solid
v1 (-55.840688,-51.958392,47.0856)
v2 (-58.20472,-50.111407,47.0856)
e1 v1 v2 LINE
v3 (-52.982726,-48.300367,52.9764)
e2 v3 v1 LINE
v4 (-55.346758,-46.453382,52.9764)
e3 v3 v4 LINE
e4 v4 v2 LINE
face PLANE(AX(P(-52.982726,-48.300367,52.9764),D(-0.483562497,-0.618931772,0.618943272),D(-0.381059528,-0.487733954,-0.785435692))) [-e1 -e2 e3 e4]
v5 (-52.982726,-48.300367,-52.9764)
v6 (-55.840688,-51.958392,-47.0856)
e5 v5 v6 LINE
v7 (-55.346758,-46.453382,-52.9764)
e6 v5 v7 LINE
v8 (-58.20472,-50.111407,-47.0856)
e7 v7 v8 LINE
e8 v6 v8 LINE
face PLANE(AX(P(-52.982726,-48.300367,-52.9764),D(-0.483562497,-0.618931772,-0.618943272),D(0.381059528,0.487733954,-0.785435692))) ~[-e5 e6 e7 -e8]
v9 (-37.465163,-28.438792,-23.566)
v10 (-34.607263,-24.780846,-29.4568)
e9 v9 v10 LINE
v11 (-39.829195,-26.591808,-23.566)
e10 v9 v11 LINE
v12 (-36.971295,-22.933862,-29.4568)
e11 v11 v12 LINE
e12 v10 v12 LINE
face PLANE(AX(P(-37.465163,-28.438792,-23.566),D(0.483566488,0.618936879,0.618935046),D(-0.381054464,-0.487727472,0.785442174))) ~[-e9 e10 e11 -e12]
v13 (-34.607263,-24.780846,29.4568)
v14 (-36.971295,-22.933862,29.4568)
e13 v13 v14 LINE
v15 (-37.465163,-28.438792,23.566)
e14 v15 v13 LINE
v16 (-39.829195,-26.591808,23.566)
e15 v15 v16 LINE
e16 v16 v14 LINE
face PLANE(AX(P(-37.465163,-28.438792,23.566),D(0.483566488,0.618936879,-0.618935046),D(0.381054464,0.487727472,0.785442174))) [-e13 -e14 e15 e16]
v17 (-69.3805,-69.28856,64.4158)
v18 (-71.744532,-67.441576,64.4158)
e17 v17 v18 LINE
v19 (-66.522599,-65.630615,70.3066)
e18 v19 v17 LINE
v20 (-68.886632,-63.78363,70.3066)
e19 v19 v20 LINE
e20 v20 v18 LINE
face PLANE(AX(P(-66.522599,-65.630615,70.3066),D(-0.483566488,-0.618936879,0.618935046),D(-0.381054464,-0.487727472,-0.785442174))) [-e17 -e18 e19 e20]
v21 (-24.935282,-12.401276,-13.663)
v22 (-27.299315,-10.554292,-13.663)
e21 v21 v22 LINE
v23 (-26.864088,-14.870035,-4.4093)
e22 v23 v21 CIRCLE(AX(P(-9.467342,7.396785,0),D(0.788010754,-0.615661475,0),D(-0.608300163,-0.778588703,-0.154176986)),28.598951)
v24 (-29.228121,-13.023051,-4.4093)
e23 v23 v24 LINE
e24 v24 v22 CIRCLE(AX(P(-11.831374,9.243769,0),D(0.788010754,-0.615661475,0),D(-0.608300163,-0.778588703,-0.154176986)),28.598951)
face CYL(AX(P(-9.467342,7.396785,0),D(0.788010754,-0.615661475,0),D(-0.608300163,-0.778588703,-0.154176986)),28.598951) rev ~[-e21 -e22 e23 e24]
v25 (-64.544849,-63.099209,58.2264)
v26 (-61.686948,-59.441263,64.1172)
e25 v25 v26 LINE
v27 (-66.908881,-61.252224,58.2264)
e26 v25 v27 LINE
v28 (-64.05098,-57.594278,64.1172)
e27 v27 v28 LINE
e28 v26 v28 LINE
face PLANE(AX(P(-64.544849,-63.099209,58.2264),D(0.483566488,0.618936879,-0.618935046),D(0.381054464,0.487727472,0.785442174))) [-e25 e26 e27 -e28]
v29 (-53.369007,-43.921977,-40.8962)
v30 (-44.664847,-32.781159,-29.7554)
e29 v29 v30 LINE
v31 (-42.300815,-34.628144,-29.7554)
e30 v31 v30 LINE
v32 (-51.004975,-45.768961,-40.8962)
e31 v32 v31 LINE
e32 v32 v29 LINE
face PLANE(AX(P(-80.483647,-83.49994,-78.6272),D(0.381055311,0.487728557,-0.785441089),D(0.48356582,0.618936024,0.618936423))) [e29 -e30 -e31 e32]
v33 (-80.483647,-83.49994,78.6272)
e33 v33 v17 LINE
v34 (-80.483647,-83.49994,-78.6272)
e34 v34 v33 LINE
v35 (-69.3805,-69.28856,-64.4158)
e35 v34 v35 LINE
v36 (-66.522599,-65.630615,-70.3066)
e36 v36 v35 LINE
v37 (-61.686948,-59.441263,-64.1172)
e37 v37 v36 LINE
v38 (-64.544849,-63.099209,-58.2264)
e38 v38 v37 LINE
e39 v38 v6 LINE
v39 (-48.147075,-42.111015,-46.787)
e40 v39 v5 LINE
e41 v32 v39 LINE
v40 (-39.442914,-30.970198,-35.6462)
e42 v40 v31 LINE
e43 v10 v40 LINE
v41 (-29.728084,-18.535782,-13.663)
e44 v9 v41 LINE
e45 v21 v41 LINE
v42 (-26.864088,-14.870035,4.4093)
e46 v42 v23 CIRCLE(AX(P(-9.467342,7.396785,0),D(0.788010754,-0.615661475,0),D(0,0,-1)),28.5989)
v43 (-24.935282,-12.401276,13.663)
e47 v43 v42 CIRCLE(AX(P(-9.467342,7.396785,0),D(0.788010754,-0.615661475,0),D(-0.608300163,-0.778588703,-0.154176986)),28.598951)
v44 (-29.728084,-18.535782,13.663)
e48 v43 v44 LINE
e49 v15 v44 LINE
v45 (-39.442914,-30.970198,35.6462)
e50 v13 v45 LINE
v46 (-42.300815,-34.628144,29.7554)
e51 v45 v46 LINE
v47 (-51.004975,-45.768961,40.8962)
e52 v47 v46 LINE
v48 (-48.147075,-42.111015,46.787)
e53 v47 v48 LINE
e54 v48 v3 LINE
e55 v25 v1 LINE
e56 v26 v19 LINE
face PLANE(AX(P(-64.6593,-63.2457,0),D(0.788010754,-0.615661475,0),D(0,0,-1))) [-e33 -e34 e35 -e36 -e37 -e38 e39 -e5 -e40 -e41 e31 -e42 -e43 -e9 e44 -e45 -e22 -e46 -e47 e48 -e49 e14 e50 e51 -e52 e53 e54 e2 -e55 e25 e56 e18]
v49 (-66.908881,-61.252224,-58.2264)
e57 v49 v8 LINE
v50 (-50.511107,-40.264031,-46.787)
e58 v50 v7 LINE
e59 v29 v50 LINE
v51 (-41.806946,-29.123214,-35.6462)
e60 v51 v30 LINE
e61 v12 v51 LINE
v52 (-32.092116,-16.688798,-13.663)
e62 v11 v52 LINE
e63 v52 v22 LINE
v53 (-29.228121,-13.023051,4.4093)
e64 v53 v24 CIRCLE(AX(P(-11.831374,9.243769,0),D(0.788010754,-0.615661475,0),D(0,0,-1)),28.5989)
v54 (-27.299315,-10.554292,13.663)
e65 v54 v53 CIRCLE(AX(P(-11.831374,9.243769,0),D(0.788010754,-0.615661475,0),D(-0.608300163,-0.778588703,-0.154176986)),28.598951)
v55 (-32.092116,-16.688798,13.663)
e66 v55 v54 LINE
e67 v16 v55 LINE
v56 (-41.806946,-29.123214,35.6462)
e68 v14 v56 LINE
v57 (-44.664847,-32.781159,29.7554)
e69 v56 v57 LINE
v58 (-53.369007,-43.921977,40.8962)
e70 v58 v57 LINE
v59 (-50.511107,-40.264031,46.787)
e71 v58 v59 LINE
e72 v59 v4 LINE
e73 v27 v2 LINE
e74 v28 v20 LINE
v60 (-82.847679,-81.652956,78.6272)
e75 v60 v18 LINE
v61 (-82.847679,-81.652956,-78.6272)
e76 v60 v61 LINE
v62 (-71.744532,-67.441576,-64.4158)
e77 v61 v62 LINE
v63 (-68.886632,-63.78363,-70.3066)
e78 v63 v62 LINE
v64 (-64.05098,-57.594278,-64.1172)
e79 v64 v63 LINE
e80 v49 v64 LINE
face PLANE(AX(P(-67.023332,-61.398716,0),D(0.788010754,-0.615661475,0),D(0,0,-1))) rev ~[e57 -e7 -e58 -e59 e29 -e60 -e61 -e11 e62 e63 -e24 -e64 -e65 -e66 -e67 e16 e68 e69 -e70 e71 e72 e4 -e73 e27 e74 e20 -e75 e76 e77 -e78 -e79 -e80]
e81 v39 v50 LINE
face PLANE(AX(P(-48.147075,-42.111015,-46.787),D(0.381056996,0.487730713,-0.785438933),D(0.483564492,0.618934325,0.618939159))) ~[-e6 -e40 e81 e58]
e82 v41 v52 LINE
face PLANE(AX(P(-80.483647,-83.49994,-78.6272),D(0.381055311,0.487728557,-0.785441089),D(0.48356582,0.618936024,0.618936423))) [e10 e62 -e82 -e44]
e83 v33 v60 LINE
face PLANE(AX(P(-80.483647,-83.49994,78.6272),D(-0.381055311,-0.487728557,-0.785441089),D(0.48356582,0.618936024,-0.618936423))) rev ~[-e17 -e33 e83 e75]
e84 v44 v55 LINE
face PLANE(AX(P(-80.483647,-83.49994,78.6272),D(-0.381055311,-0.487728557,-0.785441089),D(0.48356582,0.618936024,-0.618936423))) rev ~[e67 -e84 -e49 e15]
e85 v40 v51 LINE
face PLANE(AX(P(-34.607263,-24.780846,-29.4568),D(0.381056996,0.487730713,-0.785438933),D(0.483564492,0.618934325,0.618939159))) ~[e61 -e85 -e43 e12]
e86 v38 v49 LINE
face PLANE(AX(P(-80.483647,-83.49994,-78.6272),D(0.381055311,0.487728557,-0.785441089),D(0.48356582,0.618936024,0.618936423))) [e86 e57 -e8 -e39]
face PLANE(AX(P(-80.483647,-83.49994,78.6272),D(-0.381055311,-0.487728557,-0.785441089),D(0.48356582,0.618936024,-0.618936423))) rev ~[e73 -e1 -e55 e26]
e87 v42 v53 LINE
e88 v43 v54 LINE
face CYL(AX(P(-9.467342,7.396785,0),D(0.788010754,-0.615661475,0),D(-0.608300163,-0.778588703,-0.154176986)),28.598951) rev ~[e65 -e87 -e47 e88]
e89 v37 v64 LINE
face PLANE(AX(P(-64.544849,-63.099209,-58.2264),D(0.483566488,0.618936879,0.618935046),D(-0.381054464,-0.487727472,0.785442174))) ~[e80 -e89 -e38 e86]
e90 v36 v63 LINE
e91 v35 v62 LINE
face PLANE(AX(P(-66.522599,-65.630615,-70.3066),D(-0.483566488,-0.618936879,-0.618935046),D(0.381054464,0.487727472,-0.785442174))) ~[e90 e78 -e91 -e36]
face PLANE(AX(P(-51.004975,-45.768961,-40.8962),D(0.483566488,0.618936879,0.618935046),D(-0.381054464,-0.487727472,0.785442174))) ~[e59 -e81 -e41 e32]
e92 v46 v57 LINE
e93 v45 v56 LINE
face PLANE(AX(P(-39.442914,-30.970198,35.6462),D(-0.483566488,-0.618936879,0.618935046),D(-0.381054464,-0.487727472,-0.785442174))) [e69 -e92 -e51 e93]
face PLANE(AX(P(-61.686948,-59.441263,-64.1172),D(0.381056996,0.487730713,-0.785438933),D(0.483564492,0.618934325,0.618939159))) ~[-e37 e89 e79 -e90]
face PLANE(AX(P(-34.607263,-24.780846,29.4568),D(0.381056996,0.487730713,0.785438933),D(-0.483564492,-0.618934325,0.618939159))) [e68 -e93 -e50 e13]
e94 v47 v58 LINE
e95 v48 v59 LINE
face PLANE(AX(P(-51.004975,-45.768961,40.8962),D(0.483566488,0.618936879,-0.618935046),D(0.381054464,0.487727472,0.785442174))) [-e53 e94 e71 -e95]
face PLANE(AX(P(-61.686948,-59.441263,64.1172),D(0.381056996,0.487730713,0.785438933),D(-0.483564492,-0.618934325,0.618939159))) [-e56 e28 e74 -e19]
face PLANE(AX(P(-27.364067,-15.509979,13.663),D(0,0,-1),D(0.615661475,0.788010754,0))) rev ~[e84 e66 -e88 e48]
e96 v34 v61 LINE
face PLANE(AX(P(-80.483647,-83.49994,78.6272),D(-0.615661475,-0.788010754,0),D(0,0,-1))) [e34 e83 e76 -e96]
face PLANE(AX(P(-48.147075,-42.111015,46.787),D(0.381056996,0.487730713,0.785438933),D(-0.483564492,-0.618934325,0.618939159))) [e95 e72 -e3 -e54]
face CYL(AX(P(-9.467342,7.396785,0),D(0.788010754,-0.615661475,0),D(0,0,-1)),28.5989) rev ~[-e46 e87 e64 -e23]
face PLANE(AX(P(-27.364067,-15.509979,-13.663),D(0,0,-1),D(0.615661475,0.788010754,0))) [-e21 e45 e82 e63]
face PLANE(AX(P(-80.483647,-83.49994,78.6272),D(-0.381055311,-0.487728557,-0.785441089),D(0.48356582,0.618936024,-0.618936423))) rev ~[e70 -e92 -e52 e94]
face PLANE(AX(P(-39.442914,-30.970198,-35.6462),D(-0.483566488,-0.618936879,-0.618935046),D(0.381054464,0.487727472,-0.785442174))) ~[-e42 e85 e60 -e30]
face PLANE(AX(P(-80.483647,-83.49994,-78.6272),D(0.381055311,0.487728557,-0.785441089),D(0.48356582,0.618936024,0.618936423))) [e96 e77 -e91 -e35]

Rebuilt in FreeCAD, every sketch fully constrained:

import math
import FreeCAD as App
import Part
import Sketcher

V = App.Vector
Q = App.Units.Quantity


def add_polygon(sketch, points):
    """Adds a closed chain of lines whose ends are joined by coincident constraints."""
    first, n = sketch.GeometryCount, len(points)
    for a, b in zip(points, points[1:] + points[:1]):
        sketch.addGeometry(Part.LineSegment(App.Vector(*a, 0), App.Vector(*b, 0)), False)
    for i in range(n):
        sketch.addConstraint(Sketcher.Constraint("Coincident", first + i, 2, first + (i + 1) % n, 1))

doc = App.newDocument("Part")
body = doc.addObject("PartDesign::Body", "Body")

sketch1 = body.newObject("Sketcher::SketchObject", "Sketch")
sketch1.Placement = App.Placement(V(-64.6593, -63.2457, 0), App.Rotation(V(-0.615661475, -0.788010754, 0), V(0, 0, 1), V(-0.788010754, 0.615661475, 0), "ZXY"))
add_polygon(sketch1, [(25.7, -78.6), (25.7, 78.6), (-56.7, 13.7), (-60.6, 13.7), (-60.6, -13.7), (-56.7, -13.7)])
sketch1.addConstraint([
    Sketcher.Constraint("Vertical", 0),
    Sketcher.Constraint("Horizontal", 2),
    Sketcher.Constraint("Vertical", 3),
    Sketcher.Constraint("Horizontal", 4),
    Sketcher.Constraint("Symmetric", 1, 2, 4, 2, -1),
    Sketcher.Constraint("Equal", 1, 5),
    Sketcher.Constraint("DistanceY", 3, 2, 3, 1, 27.326),
    Sketcher.Constraint("Distance", 1, 104.961),
    Sketcher.Constraint("DistanceX", 2, 2, 2, 1, 3.8398),
    Sketcher.Constraint("DistanceY", 0, 1, 0, 2, 157.2544),
    Sketcher.Constraint("DistanceX", -1, 1, 0, 2, 25.703),
])
pad1 = body.newObject("PartDesign::Pad", "Pad")
pad1.Profile = sketch1
pad1.Length = 3

sketch2 = body.newObject("Sketcher::SketchObject", "Sketch001")
sketch2.Placement = App.Placement(V(-64.6593, -63.2457, 0), App.Rotation(V(0, 0, -1), V(0.615661475, 0.788010754, 0), V(0.788010754, -0.615661475, 0), "ZXY"))
add_polygon(sketch2, [(-70, -3), (-64, -8), (-58, 0), (-64, 5)])
add_polygon(sketch2, [(-36, 41), (-30, 36), (-24, 44), (-29, 49)])
add_polygon(sketch2, [(-53, 19), (-47, 14), (-41, 22), (-47, 27)])
sketch2.addConstraint([
    Sketcher.Constraint("Perpendicular", 0, 1),
    Sketcher.Constraint("Perpendicular", 1, 2),
    Sketcher.Constraint("Perpendicular", 2, 3),
    Sketcher.Constraint("Perpendicular", 3, 4),
    Sketcher.Constraint("Perpendicular", 4, 5),
    Sketcher.Constraint("Perpendicular", 5, 6),
    Sketcher.Constraint("Perpendicular", 6, 7),
    Sketcher.Constraint("Perpendicular", 7, 8),
    Sketcher.Constraint("Perpendicular", 8, 9),
    Sketcher.Constraint("Perpendicular", 9, 10),
    Sketcher.Constraint("Perpendicular", 10, 11),
    Sketcher.Constraint("Equal", 2, 4),
    Sketcher.Constraint("Equal", 3, 5),
    Sketcher.Constraint("Equal", 6, 8),
    Sketcher.Constraint("Equal", 7, 9),
    Sketcher.Constraint("Distance", 1, 10.0),
    Sketcher.Constraint("Distance", 0, 7.5),
    Sketcher.Constraint("Angle", 8, Q("-38.239 deg")),
    Sketcher.Constraint("DistanceX", 9, 2, 7, 2, 5.25),
    Sketcher.Constraint("DistanceY", 9, 2, 7, 2, 18.78),
    Sketcher.Constraint("DistanceX", 1, 2, 11, 2, 5.25),
    Sketcher.Constraint("DistanceY", 1, 2, 11, 2, 18.78),
    Sketcher.Constraint("DistanceY", -1, 1, 1, 2, 0.186),
    Sketcher.Constraint("DistanceX", 5, 2, -1, 1, 23.566),
])
pad2 = body.newObject("PartDesign::Pad", "Pad001")
pad2.Profile = sketch2
pad2.Length = 3
pad2.Reversed = True
doc.recompute()

mirrored = body.newObject("PartDesign::Mirrored", "Mirrored")
mirrored.Originals = [pad2]
mirrored.MirrorPlane = (doc.getObject("XY_Plane"), [""])
body.Tip = mirrored

sketch3 = body.newObject("Sketcher::SketchObject", "Sketch002")
sketch3.Placement = App.Placement(V(-64.6593, -63.2457, 0), App.Rotation(V(0, 0, -1), V(0.615661475, 0.788010754, 0), V(0.788010754, -0.615661475, 0), "ZXY"))
sketch3.addGeometry([
    Part.ArcOfCircle(Part.Circle(V(0, 89.6, 0), V(0, 0, 1), 28.6), math.radians(-119), math.radians(-61)),
    Part.LineSegment(V(-13.7, 64.5, 0), V(-13.7, 60.6, 0)),
    Part.LineSegment(V(-13.7, 60.6, 0), V(13.7, 60.6, 0)),
    Part.LineSegment(V(13.7, 60.6, 0), V(13.7, 64.5, 0)),
], False)
sketch3.addConstraint([
    Sketcher.Constraint("Coincident", 0, 1, 1, 1),
    Sketcher.Constraint("Coincident", 1, 2, 2, 1),
    Sketcher.Constraint("Coincident", 2, 2, 3, 1),
    Sketcher.Constraint("Coincident", 3, 2, 0, 2),
    Sketcher.Constraint("Vertical", 1),
    Sketcher.Constraint("Horizontal", 2),
    Sketcher.Constraint("Vertical", 3),
    Sketcher.Constraint("Symmetric", 0, 1, 3, 2, -2),
    Sketcher.Constraint("Radius", 0, 28.599),
    Sketcher.Constraint("DistanceX", 2, 1, 2, 2, 27.326),
    Sketcher.Constraint("DistanceY", 1, 2, 1, 1, 3.945),
    Sketcher.Constraint("DistanceY", -1, 1, 0, 3, 89.6466),
])
pad3 = body.newObject("PartDesign::Pad", "Pad002")
pad3.Profile = sketch3
pad3.Length = 3
pad3.Reversed = True

doc.recompute()
